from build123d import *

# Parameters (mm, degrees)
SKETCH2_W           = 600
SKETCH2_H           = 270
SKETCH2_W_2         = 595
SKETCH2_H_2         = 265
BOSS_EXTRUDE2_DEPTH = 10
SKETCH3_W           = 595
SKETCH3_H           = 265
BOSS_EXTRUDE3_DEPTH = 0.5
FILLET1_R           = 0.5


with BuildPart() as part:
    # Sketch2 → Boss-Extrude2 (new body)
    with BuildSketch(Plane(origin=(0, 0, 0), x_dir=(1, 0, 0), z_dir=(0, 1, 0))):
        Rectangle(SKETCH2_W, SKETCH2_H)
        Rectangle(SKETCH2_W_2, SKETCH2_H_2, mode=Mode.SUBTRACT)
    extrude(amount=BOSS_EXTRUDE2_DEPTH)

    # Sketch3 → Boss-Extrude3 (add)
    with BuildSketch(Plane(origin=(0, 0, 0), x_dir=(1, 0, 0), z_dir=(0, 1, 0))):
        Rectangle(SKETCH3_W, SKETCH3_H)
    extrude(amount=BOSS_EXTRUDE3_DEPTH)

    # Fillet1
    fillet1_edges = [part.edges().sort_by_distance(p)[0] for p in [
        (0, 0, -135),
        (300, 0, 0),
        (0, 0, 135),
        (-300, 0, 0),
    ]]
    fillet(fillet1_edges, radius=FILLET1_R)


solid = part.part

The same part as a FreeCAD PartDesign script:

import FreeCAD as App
import Part
import Sketcher
Q = App.Units.Quantity


def edges_at(feature, points):
    """Names of the edges that pass closest to the given points."""
    edges = feature.Shape.Edges
    near = lambda p: min(range(len(edges)), key=lambda i: edges[i].distToShape(Part.Vertex(*p))[0])
    return sorted({f"Edge{near(p) + 1}" for p in points})


def add_polygon(sketch, points):
    """Adds a closed chain of lines whose ends are joined by coincident constraints."""
    first, n = sketch.GeometryCount, len(points)
    for a, b in zip(points, points[1:] + points[:1]):
        sketch.addGeometry(Part.LineSegment(App.Vector(*a, 0), App.Vector(*b, 0)), False)
    for i in range(n):
        sketch.addConstraint(Sketcher.Constraint("Coincident", first + i, 2, first + (i + 1) % n, 1))

doc = App.newDocument("Part")
body = doc.addObject("PartDesign::Body", "Body")

# Sketch on XZ plane
sketch1 = body.newObject("Sketcher::SketchObject", "Sketch")
sketch1.AttachmentSupport = (doc.getObject("XZ_Plane"), [""])
sketch1.MapMode = "FlatFace"
add_polygon(sketch1, [(-300, -135), (-300, 135), (300, 135), (300, -135)])  # lines 0-3
add_polygon(sketch1, [(298, 132), (-298, 132), (-298, -132), (298, -132)])  # lines 4-7
sketch1.addConstraint([
    Sketcher.Constraint("Vertical", 0),
    Sketcher.Constraint("Horizontal", 1),
    Sketcher.Constraint("Vertical", 2),
    Sketcher.Constraint("Horizontal", 3),
    Sketcher.Constraint("Horizontal", 4),
    Sketcher.Constraint("Vertical", 5),
    Sketcher.Constraint("Horizontal", 6),
    Sketcher.Constraint("Vertical", 7),
    Sketcher.Constraint("Symmetric", 0, 2, 2, 2, -1, 1),
    Sketcher.Constraint("Symmetric", 4, 2, 6, 2, -1, 1),
    Sketcher.Constraint("DistanceX", 1, 1, 1, 2, Q("600 mm")),
    Sketcher.Constraint("DistanceX", 4, 2, 4, 1, Q("595 mm")),
    Sketcher.Constraint("DistanceY", 0, 1, 0, 2, Q("270 mm")),
    Sketcher.Constraint("DistanceY", 5, 2, 5, 1, Q("265 mm")),
])
pad1 = body.newObject("PartDesign::Pad", "Pad")
pad1.Profile = sketch1
pad1.Length = 10
pad1.Reversed = True

# Sketch on XZ plane
sketch2 = body.newObject("Sketcher::SketchObject", "Sketch001")
sketch2.AttachmentSupport = (doc.getObject("XZ_Plane"), [""])
sketch2.MapMode = "FlatFace"
add_polygon(sketch2, [(-298, -132), (-298, 132), (298, 132), (298, -132)])  # lines 0-3
sketch2.addConstraint([
    Sketcher.Constraint("Vertical", 0),
    Sketcher.Constraint("Horizontal", 1),
    Sketcher.Constraint("Vertical", 2),
    Sketcher.Constraint("Horizontal", 3),
    Sketcher.Constraint("Symmetric", 0, 2, 2, 2, -1, 1),
    Sketcher.Constraint("DistanceX", 1, 1, 1, 2, Q("595 mm")),
    Sketcher.Constraint("DistanceY", 0, 1, 0, 2, Q("265 mm")),
])
pad2 = body.newObject("PartDesign::Pad", "Pad001")
pad2.Profile = sketch2
pad2.Length = 0.5
pad2.Reversed = True
doc.recompute()

fillet = body.newObject("PartDesign::Fillet", "Fillet")
fillet.Base = (pad2, edges_at(pad2, [
    (0, 0, -135),
    (300, 0, 0),
    (0, 0, 135),
    (-300, 0, 0),
]))
fillet.Radius = 0.5

doc.recompute()
